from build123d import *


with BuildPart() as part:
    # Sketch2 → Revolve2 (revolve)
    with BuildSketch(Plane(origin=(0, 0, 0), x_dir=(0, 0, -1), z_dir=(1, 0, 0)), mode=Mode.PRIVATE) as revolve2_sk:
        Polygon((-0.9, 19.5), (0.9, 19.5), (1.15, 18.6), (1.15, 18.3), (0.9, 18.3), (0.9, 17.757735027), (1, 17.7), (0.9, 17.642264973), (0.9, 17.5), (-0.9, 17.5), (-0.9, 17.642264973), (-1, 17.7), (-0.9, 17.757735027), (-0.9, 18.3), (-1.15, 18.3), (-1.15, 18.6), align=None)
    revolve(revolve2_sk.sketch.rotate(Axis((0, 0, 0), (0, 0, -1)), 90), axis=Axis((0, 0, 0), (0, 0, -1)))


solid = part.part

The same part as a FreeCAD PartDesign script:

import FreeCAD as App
import Part
import Sketcher
Q = App.Units.Quantity


def add_polygon(sketch, points):
    """Adds a closed chain of lines whose ends are joined by coincident constraints."""
    first, n = sketch.GeometryCount, len(points)
    for a, b in zip(points, points[1:] + points[:1]):
        sketch.addGeometry(Part.LineSegment(App.Vector(*a, 0), App.Vector(*b, 0)), False)
    for i in range(n):
        sketch.addConstraint(Sketcher.Constraint("Coincident", first + i, 2, first + (i + 1) % n, 1))

doc = App.newDocument("Part")
params = doc.addObject("Spreadsheet::Sheet", "Params")
for row, (alias, value) in enumerate([
    ("sketch1_width", "0.3 mm"),
    ("sketch1_height", "1.8 mm"),
    ("sketch1_height2", "0.25 mm"),
    ("revolution_angle", "360 deg"),
], start=1):
    params.set(f"A{row}", alias)
    params.set(f"B{row}", "=" + value)
    params.setAlias(f"B{row}", alias)

body = doc.addObject("PartDesign::Body", "Body")

# Sketch on YZ plane
sketch1 = doc.addObject("Sketcher::SketchObject", "Sketch")
body.addObject(sketch1)
sketch1.AttachmentSupport = (doc.YZ_Plane, [""])
sketch1.MapMode = "FlatFace"
add_polygon(sketch1, [(19.5, -0.9), (19.5, 0.9), (18.6, 1.15), (18.3, 1.15), (18.3, 0.9), (17.76, 0.9), (17.7, 1), (17.64, 0.9), (17.5, 0.9), (17.5, -0.9), (17.64, -0.9), (17.7, -1), (17.76, -0.9), (18.3, -0.9), (18.3, -1.15), (18.6, -1.15)])  # lines 0-15
sketch1.addConstraint(Sketcher.Constraint("Vertical", 0))
sketch1.addConstraint(Sketcher.Constraint("Horizontal", 2))
sketch1.addConstraint(Sketcher.Constraint("Vertical", 3))
sketch1.addConstraint(Sketcher.Constraint("Horizontal", 4))
sketch1.addConstraint(Sketcher.Constraint("Horizontal", 7))
sketch1.addConstraint(Sketcher.Constraint("Vertical", 8))
sketch1.addConstraint(Sketcher.Constraint("Horizontal", 9))
sketch1.addConstraint(Sketcher.Constraint("Horizontal", 12))
sketch1.addConstraint(Sketcher.Constraint("Vertical", 13))
sketch1.addConstraint(Sketcher.Constraint("Horizontal", 14))
sketch1.addConstraint(Sketcher.Constraint("Symmetric", 6, 2, 9, 2, -1))
sketch1.addConstraint(Sketcher.Constraint("Symmetric", 5, 2, 10, 2, -1))
sketch1.addConstraint(Sketcher.Constraint("Symmetric", 4, 2, 11, 2, -1))
sketch1.addConstraint(Sketcher.Constraint("Symmetric", 2, 2, 13, 2, -1))
sketch1.addConstraint(Sketcher.Constraint("Parallel", 5, 10))
sketch1.addConstraint(Sketcher.Constraint("Horizontal", 0, 2, 3, 2))
sketch1.addConstraint(Sketcher.Constraint("Horizontal", 4, 2, 6, 2))
sketch1.addConstraint(Sketcher.Constraint("Horizontal", 12, 2, 15, 2))
sketch1.addConstraint(Sketcher.Constraint("Vertical", 1, 2, 14, 2))
sketch1.addConstraint(Sketcher.Constraint("Angle", 5, Q("120 deg")))
sketch1.addConstraint(Sketcher.Constraint("DistanceX", 2, 2, 2, 1, 0.3))
sketch1.addConstraint(Sketcher.Constraint("DistanceY", 0, 1, 0, 2, 1.8))
sketch1.addConstraint(Sketcher.Constraint("DistanceY", -1, 1, 5, 2, 1.0))
sketch1.addConstraint(Sketcher.Constraint("DistanceY", 3, 2, 3, 1, 0.25))
sketch1.addConstraint(Sketcher.Constraint("DistanceX", -1, 1, 0, 2, 19.5))
sketch1.addConstraint(Sketcher.Constraint("DistanceX", -1, 1, 1, 2, 18.6))
sketch1.addConstraint(Sketcher.Constraint("DistanceX", -1, 1, 5, 2, 17.7))
sketch1.addConstraint(Sketcher.Constraint("DistanceX", -1, 1, 7, 2, 17.5))
sketch1.setExpression("Constraints[36]", "Params.sketch1_width")
sketch1.setExpression("Constraints[37]", "Params.sketch1_height")
sketch1.setExpression("Constraints[39]", "Params.sketch1_height2")
revolution = doc.addObject("PartDesign::Revolution", "Revolution")
body.addObject(revolution)
revolution.Profile = sketch1
revolution.ReferenceAxis = (sketch1, ["V_Axis"])
revolution.setExpression("Angle", "Params.revolution_angle")

doc.recompute()
